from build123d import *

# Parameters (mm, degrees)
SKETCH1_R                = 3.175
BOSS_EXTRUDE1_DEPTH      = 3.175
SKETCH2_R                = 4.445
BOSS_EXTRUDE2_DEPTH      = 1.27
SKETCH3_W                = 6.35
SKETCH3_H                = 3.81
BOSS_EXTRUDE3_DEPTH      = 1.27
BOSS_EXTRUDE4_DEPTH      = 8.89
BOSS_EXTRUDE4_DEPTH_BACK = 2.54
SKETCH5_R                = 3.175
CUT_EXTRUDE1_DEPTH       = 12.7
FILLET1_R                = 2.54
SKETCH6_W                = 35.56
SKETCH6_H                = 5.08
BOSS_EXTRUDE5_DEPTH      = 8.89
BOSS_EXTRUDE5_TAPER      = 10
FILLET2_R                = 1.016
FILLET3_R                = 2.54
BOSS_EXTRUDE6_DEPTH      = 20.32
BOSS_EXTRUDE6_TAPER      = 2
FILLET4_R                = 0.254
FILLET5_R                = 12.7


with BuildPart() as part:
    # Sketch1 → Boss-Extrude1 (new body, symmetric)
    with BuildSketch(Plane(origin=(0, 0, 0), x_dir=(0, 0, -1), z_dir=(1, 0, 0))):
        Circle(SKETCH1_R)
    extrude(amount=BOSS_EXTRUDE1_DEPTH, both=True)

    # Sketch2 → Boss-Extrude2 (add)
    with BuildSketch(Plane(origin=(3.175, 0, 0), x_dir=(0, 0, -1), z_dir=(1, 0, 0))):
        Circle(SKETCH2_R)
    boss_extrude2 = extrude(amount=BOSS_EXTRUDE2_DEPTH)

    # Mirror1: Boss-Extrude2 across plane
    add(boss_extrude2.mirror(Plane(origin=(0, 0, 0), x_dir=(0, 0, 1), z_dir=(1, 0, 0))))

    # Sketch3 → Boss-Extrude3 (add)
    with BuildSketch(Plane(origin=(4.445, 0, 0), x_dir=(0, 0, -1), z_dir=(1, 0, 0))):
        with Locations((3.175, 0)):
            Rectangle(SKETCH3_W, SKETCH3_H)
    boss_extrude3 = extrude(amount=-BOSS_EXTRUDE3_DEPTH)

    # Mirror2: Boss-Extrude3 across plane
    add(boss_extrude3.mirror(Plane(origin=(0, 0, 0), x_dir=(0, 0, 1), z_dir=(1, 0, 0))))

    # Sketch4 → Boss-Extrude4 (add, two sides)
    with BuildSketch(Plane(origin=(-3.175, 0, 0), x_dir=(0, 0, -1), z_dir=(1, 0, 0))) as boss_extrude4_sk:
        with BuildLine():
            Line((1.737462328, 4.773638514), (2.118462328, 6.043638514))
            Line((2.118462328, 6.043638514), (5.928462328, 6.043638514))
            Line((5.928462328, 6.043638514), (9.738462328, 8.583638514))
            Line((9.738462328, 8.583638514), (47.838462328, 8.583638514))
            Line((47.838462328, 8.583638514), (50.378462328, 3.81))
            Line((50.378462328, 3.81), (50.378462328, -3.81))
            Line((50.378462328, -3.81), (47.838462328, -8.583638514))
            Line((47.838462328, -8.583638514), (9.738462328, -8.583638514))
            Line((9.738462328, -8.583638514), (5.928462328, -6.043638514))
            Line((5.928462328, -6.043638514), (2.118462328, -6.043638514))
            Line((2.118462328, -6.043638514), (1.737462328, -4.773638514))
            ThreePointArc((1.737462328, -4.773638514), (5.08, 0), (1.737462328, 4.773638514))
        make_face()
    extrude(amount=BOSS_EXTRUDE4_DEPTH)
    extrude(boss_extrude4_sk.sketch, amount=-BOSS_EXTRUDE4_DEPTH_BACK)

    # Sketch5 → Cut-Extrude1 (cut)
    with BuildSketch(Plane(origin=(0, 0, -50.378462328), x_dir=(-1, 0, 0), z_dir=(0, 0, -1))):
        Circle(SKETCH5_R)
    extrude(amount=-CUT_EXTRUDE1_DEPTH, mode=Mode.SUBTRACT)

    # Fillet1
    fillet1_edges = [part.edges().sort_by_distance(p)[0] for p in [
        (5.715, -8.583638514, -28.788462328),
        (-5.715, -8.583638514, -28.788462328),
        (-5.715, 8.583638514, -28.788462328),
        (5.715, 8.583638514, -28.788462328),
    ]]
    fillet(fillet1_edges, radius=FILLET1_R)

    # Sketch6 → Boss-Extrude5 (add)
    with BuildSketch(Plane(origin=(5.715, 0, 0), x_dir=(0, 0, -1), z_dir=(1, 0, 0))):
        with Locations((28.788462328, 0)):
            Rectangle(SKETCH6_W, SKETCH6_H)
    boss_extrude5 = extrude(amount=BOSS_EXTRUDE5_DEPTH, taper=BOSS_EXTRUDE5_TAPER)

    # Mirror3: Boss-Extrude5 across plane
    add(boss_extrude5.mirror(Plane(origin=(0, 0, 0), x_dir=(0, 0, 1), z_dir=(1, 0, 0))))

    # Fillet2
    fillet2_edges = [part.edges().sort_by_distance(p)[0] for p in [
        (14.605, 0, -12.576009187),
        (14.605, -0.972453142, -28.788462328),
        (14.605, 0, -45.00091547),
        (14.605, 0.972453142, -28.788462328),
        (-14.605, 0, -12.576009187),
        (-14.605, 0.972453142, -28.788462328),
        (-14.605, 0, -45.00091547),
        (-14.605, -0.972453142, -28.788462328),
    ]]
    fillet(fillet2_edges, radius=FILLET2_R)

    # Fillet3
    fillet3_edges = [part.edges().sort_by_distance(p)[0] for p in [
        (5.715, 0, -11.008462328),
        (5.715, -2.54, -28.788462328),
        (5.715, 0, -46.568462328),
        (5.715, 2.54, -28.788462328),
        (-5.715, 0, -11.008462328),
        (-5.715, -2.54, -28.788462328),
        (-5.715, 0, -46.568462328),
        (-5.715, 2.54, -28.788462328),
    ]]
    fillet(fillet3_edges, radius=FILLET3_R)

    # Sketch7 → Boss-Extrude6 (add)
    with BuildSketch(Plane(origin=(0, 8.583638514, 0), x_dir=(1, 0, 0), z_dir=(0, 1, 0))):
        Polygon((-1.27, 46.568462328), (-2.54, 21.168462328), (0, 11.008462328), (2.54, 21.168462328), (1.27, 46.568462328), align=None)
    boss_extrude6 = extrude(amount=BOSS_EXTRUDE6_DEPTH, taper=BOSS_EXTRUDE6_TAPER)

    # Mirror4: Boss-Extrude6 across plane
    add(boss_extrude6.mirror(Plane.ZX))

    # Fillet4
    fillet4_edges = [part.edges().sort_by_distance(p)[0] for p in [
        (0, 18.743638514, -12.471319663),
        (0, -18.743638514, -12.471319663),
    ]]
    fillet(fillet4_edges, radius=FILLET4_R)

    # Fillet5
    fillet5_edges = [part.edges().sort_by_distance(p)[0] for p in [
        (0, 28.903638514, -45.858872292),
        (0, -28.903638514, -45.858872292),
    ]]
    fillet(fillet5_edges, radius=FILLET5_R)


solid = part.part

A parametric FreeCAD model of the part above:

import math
import FreeCAD as App
import Part
import Sketcher
Q = App.Units.Quantity


def edges_at(feature, points):
    """Names of the edges that pass closest to the given points."""
    edges = feature.Shape.Edges
    near = lambda p: min(range(len(edges)), key=lambda i: edges[i].distToShape(Part.Vertex(*p))[0])
    return sorted({f"Edge{near(p) + 1}" for p in points})

doc = App.newDocument("Part")
body = doc.addObject("PartDesign::Body", "Body")

# Sketch on YZ plane
sketch1 = body.newObject("Sketcher::SketchObject", "Sketch")
sketch1.AttachmentSupport = (doc.getObject("YZ_Plane"), [""])
sketch1.MapMode = "FlatFace"
sketch1.addGeometry(Part.Circle(App.Vector(0, 0, 0), App.Vector(0, 0, 1), 3.2), False)
sketch1.addConstraint([
    Sketcher.Constraint("Coincident", 0, 3, -1, 1),
    Sketcher.Constraint("Diameter", 0, Q("0.25 in")),
])
pad1 = body.newObject("PartDesign::Pad", "Pad")
pad1.Profile = sketch1
pad1.Length = Q("0.25 in")
pad1.Midplane = True

# Sketch on YZ plane
sketch2 = body.newObject("Sketcher::SketchObject", "Sketch001")
sketch2.AttachmentSupport = (doc.getObject("YZ_Plane"), [""])
sketch2.MapMode = "FlatFace"
sketch2.AttachmentOffset = App.Placement(App.Vector(0, 0, 0.125 * 25.4), App.Rotation())
sketch2.addGeometry(Part.Circle(App.Vector(0, 0, 0), App.Vector(0, 0, 1), 4.4), False)
sketch2.addConstraint([
    Sketcher.Constraint("Coincident", 0, 3, -1, 1),
    Sketcher.Constraint("Diameter", 0, Q("0.35 in")),
])
pad2 = body.newObject("PartDesign::Pad", "Pad001")
pad2.Profile = sketch2
pad2.Length = Q("0.05 in")
doc.recompute()

mirrored = body.newObject("PartDesign::Mirrored", "Mirrored")
mirrored.Originals = [pad2]
mirrored.MirrorPlane = (doc.getObject("YZ_Plane"), [""])
body.Tip = mirrored

# Sketch on YZ plane
sketch3 = body.newObject("Sketcher::SketchObject", "Sketch002")
sketch3.AttachmentSupport = (doc.getObject("YZ_Plane"), [""])
sketch3.MapMode = "FlatFace"
sketch3.AttachmentOffset = App.Placement(App.Vector(0, 0, 0.175 * 25.4), App.Rotation())
sketch3.addGeometry([
    Part.LineSegment(App.Vector(1.9, 0, 0), App.Vector(-1.9, 0, 0)),
    Part.LineSegment(App.Vector(-1.9, 0, 0), App.Vector(-1.9, -6.3, 0)),
    Part.LineSegment(App.Vector(-1.9, -6.3, 0), App.Vector(1.9, -6.3, 0)),
    Part.LineSegment(App.Vector(1.9, -6.3, 0), App.Vector(1.9, 0, 0)),
], False)
sketch3.addConstraint([
    Sketcher.Constraint("Coincident", 0, 2, 1, 1),
    Sketcher.Constraint("Coincident", 1, 2, 2, 1),
    Sketcher.Constraint("Coincident", 2, 2, 3, 1),
    Sketcher.Constraint("Coincident", 3, 2, 0, 1),
    Sketcher.Constraint("Horizontal", 0),
    Sketcher.Constraint("Vertical", 1),
    Sketcher.Constraint("Horizontal", 2),
    Sketcher.Constraint("Vertical", 3),
    Sketcher.Constraint("Symmetric", 0, 2, 3, 2, -1, 1),
    Sketcher.Constraint("DistanceX", 0, 2, 0, 1, Q("0.15 in")),
    Sketcher.Constraint("DistanceY", 1, 2, 1, 1, Q("0.25 in")),
])
pad3 = body.newObject("PartDesign::Pad", "Pad002")
pad3.Profile = sketch3
pad3.Length = Q("0.05 in")
pad3.Reversed = True
doc.recompute()

mirrored2 = body.newObject("PartDesign::Mirrored", "Mirrored001")
mirrored2.Originals = [pad3]
mirrored2.MirrorPlane = (doc.getObject("YZ_Plane"), [""])
body.Tip = mirrored2

# Sketch on YZ plane
sketch4 = body.newObject("Sketcher::SketchObject", "Sketch003")
sketch4.AttachmentSupport = (doc.getObject("YZ_Plane"), [""])
sketch4.MapMode = "FlatFace"
sketch4.AttachmentOffset = App.Placement(App.Vector(0, 0, -0.125 * 25.4), App.Rotation())
sketch4.addGeometry([
    Part.LineSegment(App.Vector(6, -2.1, 0), App.Vector(4.8, -1.7, 0)),  # 0
    Part.ArcOfCircle(Part.Circle(App.Vector(0, 0, 0), App.Vector(0, 0, 1), 5.1), math.radians(-160), math.radians(-20)),  # 1
    Part.LineSegment(App.Vector(-4.8, -1.7, 0), App.Vector(-6, -2.1, 0)),  # 2
    Part.LineSegment(App.Vector(-6, -2.1, 0), App.Vector(-6, -5.9, 0)),  # 3
    Part.LineSegment(App.Vector(-6, -5.9, 0), App.Vector(-8.6, -9.7, 0)),  # 4
    Part.LineSegment(App.Vector(-8.6, -9.7, 0), App.Vector(-8.6, -47.8, 0)),  # 5
    Part.LineSegment(App.Vector(-8.6, -47.8, 0), App.Vector(-3.8, -50.4, 0)),  # 6
    Part.LineSegment(App.Vector(-3.8, -50.4, 0), App.Vector(3.8, -50.4, 0)),  # 7
    Part.LineSegment(App.Vector(3.8, -50.4, 0), App.Vector(8.6, -47.8, 0)),  # 8
    Part.LineSegment(App.Vector(8.6, -47.8, 0), App.Vector(8.6, -9.7, 0)),  # 9
    Part.LineSegment(App.Vector(8.6, -9.7, 0), App.Vector(6, -5.9, 0)),  # 10
    Part.LineSegment(App.Vector(6, -5.9, 0), App.Vector(6, -2.1, 0)),  # 11
], False)
sketch4.addConstraint([
    Sketcher.Constraint("Coincident", 0, 2, 1, 2),
    Sketcher.Constraint("Coincident", 1, 1, 2, 1),
    Sketcher.Constraint("Coincident", 2, 2, 3, 1),
    Sketcher.Constraint("Coincident", 3, 2, 4, 1),
    Sketcher.Constraint("Coincident", 4, 2, 5, 1),
    Sketcher.Constraint("Coincident", 5, 2, 6, 1),
    Sketcher.Constraint("Coincident", 6, 2, 7, 1),
    Sketcher.Constraint("Coincident", 7, 2, 8, 1),
    Sketcher.Constraint("Coincident", 8, 2, 9, 1),
    Sketcher.Constraint("Coincident", 9, 2, 10, 1),
    Sketcher.Constraint("Coincident", 10, 2, 11, 1),
    Sketcher.Constraint("Coincident", 11, 2, 0, 1),
    Sketcher.Constraint("Vertical", 3),
    Sketcher.Constraint("Vertical", 5),
    Sketcher.Constraint("Horizontal", 7),
    Sketcher.Constraint("Vertical", 9),
    Sketcher.Constraint("Vertical", 11),
    Sketcher.Constraint("Coincident", 1, 3, -1, 1),
    Sketcher.Constraint("Symmetric", 5, 2, 8, 2, -2),
    Sketcher.Constraint("Symmetric", 3, 2, 10, 2, -2),
    Sketcher.Constraint("Horizontal", 0, 2, 1, 1),
    Sketcher.Constraint("Horizontal", 4, 2, 9, 2),
    Sketcher.Constraint("Horizontal", 2, 2, 11, 2),
    Sketcher.Constraint("Equal", 6, 8),
    Sketcher.Constraint("Radius", 1, Q("0.2 in")),
    Sketcher.Constraint("DistanceX", 7, 1, 7, 2, Q("0.3 in")),
    Sketcher.Constraint("DistanceY", 5, 2, 5, 1, Q("1.5 in")),
    Sketcher.Constraint("DistanceY", 3, 2, 3, 1, Q("0.15 in")),
    Sketcher.Constraint("DistanceX", 4, 2, 3, 2, Q("0.1 in")),
    Sketcher.Constraint("DistanceY", 4, 2, 2, 2, Q("0.3 in")),
    Sketcher.Constraint("DistanceY", 6, 2, 5, 2, Q("0.1 in")),
    Sketcher.Constraint("DistanceX", 2, 2, 1, 1, Q("0.05 in")),
    Sketcher.Constraint("DistanceY", 2, 2, 1, 1, Q("0.015 in")),
    Sketcher.Constraint("Distance", 6, Q("5.407331 mm")),
])
pad4 = body.newObject("PartDesign::Pad", "Pad003")
pad4.Profile = sketch4
pad4.Type = "TwoLengths"
pad4.Length = Q("0.35 in")
pad4.Length2 = Q("0.1 in")

# Sketch on XY plane
sketch5 = body.newObject("Sketcher::SketchObject", "Sketch004")
sketch5.AttachmentSupport = (doc.getObject("XY_Plane"), [""])
sketch5.MapMode = "FlatFace"
sketch5.AttachmentOffset = App.Placement(App.Vector(0, 0, -50.378462), App.Rotation())
sketch5.addGeometry(Part.Circle(App.Vector(0, 0, 0), App.Vector(0, 0, 1), 3.2), False)
sketch5.addConstraint([
    Sketcher.Constraint("Coincident", 0, 3, -1, 1),
    Sketcher.Constraint("Diameter", 0, Q("0.25 in")),
])
pocket1 = body.newObject("PartDesign::Pocket", "Pocket")
pocket1.Profile = sketch5
pocket1.Length = Q("0.5 in")
pocket1.Reversed = True
doc.recompute()

fillet = body.newObject("PartDesign::Fillet", "Fillet")
fillet.Base = (pocket1, edges_at(pocket1, [
    (5.715, -8.584, -28.788),
    (-5.715, -8.584, -28.788),
    (-5.715, 8.584, -28.788),
    (5.715, 8.584, -28.788),
]))
fillet.Radius = Q("0.1 in")

# Sketch on YZ plane
sketch6 = body.newObject("Sketcher::SketchObject", "Sketch005")
sketch6.AttachmentSupport = (doc.getObject("YZ_Plane"), [""])
sketch6.MapMode = "FlatFace"
sketch6.AttachmentOffset = App.Placement(App.Vector(0, 0, 0.225 * 25.4), App.Rotation())
sketch6.addGeometry([
    Part.LineSegment(App.Vector(3, -11, 0), App.Vector(-3, -11, 0)),
    Part.LineSegment(App.Vector(-3, -11, 0), App.Vector(-3, -47, 0)),
    Part.LineSegment(App.Vector(-3, -47, 0), App.Vector(3, -47, 0)),
    Part.LineSegment(App.Vector(3, -47, 0), App.Vector(3, -11, 0)),
], False)
sketch6.addConstraint([
    Sketcher.Constraint("Coincident", 0, 2, 1, 1),
    Sketcher.Constraint("Coincident", 1, 2, 2, 1),
    Sketcher.Constraint("Coincident", 2, 2, 3, 1),
    Sketcher.Constraint("Coincident", 3, 2, 0, 1),
    Sketcher.Constraint("Horizontal", 0),
    Sketcher.Constraint("Vertical", 1),
    Sketcher.Constraint("Horizontal", 2),
    Sketcher.Constraint("Vertical", 3),
    Sketcher.Constraint("DistanceX", 0, 2, 0, 1, Q("0.2 in")),
    Sketcher.Constraint("DistanceY", 1, 2, 1, 1, Q("1.4 in")),
    Sketcher.Constraint("DistanceX", 0, 2, -1, 1, Q("0.1 in")),
    Sketcher.Constraint("DistanceY", 0, 2, -1, 1, Q("11.008462 mm")),
])
pad5 = body.newObject("PartDesign::Pad", "Pad004")
pad5.Profile = sketch6
pad5.Length = Q("0.35 in")
pad5.TaperAngle = -10
doc.recompute()

mirrored3 = body.newObject("PartDesign::Mirrored", "Mirrored002")
mirrored3.Originals = [pad5]
mirrored3.MirrorPlane = (doc.getObject("YZ_Plane"), [""])
body.Tip = mirrored3
doc.recompute()

fillet2 = body.newObject("PartDesign::Fillet", "Fillet001")
fillet2.Base = (mirrored3, edges_at(mirrored3, [
    (14.605, 0, -12.576),
    (14.605, -0.972, -28.788),
    (14.605, 0, -45.001),
    (14.605, 0.972, -28.788),
    (-14.605, 0, -12.576),
    (-14.605, 0.972, -28.788),
    (-14.605, 0, -45.001),
    (-14.605, -0.972, -28.788),
]))
fillet2.Radius = Q("0.04 in")
doc.recompute()

fillet3 = body.newObject("PartDesign::Fillet", "Fillet002")
fillet3.Base = (fillet2, edges_at(fillet2, [
    (5.715, 0, -11.008),
    (5.715, -2.54, -28.788),
    (5.715, 0, -46.568),
    (5.715, 2.54, -28.788),
    (-5.715, 0, -11.008),
    (-5.715, -2.54, -28.788),
    (-5.715, 0, -46.568),
    (-5.715, 2.54, -28.788),
]))
fillet3.Radius = Q("0.1 in")

# Sketch on XZ plane
sketch7 = body.newObject("Sketcher::SketchObject", "Sketch006")
sketch7.AttachmentSupport = (doc.getObject("XZ_Plane"), [""])
sketch7.MapMode = "FlatFace"
sketch7.AttachmentOffset = App.Placement(App.Vector(0, 0, -8.583639), App.Rotation())
sketch7.addGeometry([
    Part.LineSegment(App.Vector(-1.3, -46.6, 0), App.Vector(-2.5, -21.2, 0)),  # 0
    Part.LineSegment(App.Vector(-2.5, -21.2, 0), App.Vector(0, -11, 0)),  # 1
    Part.LineSegment(App.Vector(0, -11, 0), App.Vector(2.5, -21.2, 0)),  # 2
    Part.LineSegment(App.Vector(2.5, -21.2, 0), App.Vector(1.3, -46.6, 0)),  # 3
    Part.LineSegment(App.Vector(1.3, -46.6, 0), App.Vector(-1.3, -46.6, 0)),  # 4
], False)
sketch7.addConstraint([
    Sketcher.Constraint("Coincident", 0, 2, 1, 1),
    Sketcher.Constraint("Coincident", 1, 2, 2, 1),
    Sketcher.Constraint("Coincident", 2, 2, 3, 1),
    Sketcher.Constraint("Coincident", 3, 2, 4, 1),
    Sketcher.Constraint("Coincident", 4, 2, 0, 1),
    Sketcher.Constraint("Horizontal", 4),
    Sketcher.Constraint("Symmetric", 0, 2, 2, 2, -2),
    Sketcher.Constraint("PointOnObject", 1, 2, -2),
    Sketcher.Constraint("Equal", 0, 3),
    Sketcher.Constraint("DistanceX", 4, 2, 4, 1, Q("0.1 in")),
    Sketcher.Constraint("DistanceY", 3, 2, 2, 2, Q("1 in")),
    Sketcher.Constraint("DistanceX", 0, 2, -1, 1, Q("0.1 in")),
    Sketcher.Constraint("DistanceY", 0, 2, 1, 2, Q("0.4 in")),
    Sketcher.Constraint("DistanceY", 0, 2, -1, 1, Q("21.168462 mm")),
])
pad6 = body.newObject("PartDesign::Pad", "Pad005")
pad6.Profile = sketch7
pad6.Length = Q("0.8 in")
pad6.Reversed = True
pad6.TaperAngle = -2
doc.recompute()

mirrored4 = body.newObject("PartDesign::Mirrored", "Mirrored003")
mirrored4.Originals = [pad6]
mirrored4.MirrorPlane = (doc.getObject("XZ_Plane"), [""])
body.Tip = mirrored4
doc.recompute()

fillet4 = body.newObject("PartDesign::Fillet", "Fillet003")
fillet4.Base = (mirrored4, edges_at(mirrored4, [(0, 18.744, -12.471), (0, -18.744, -12.471)]))
fillet4.Radius = Q("0.01 in")
doc.recompute()

fillet5 = body.newObject("PartDesign::Fillet", "Fillet004")
fillet5.Base = (fillet4, edges_at(fillet4, [(0, 28.904, -45.859), (0, -28.904, -45.859)]))
fillet5.Radius = Q("0.5 in")

doc.recompute()
